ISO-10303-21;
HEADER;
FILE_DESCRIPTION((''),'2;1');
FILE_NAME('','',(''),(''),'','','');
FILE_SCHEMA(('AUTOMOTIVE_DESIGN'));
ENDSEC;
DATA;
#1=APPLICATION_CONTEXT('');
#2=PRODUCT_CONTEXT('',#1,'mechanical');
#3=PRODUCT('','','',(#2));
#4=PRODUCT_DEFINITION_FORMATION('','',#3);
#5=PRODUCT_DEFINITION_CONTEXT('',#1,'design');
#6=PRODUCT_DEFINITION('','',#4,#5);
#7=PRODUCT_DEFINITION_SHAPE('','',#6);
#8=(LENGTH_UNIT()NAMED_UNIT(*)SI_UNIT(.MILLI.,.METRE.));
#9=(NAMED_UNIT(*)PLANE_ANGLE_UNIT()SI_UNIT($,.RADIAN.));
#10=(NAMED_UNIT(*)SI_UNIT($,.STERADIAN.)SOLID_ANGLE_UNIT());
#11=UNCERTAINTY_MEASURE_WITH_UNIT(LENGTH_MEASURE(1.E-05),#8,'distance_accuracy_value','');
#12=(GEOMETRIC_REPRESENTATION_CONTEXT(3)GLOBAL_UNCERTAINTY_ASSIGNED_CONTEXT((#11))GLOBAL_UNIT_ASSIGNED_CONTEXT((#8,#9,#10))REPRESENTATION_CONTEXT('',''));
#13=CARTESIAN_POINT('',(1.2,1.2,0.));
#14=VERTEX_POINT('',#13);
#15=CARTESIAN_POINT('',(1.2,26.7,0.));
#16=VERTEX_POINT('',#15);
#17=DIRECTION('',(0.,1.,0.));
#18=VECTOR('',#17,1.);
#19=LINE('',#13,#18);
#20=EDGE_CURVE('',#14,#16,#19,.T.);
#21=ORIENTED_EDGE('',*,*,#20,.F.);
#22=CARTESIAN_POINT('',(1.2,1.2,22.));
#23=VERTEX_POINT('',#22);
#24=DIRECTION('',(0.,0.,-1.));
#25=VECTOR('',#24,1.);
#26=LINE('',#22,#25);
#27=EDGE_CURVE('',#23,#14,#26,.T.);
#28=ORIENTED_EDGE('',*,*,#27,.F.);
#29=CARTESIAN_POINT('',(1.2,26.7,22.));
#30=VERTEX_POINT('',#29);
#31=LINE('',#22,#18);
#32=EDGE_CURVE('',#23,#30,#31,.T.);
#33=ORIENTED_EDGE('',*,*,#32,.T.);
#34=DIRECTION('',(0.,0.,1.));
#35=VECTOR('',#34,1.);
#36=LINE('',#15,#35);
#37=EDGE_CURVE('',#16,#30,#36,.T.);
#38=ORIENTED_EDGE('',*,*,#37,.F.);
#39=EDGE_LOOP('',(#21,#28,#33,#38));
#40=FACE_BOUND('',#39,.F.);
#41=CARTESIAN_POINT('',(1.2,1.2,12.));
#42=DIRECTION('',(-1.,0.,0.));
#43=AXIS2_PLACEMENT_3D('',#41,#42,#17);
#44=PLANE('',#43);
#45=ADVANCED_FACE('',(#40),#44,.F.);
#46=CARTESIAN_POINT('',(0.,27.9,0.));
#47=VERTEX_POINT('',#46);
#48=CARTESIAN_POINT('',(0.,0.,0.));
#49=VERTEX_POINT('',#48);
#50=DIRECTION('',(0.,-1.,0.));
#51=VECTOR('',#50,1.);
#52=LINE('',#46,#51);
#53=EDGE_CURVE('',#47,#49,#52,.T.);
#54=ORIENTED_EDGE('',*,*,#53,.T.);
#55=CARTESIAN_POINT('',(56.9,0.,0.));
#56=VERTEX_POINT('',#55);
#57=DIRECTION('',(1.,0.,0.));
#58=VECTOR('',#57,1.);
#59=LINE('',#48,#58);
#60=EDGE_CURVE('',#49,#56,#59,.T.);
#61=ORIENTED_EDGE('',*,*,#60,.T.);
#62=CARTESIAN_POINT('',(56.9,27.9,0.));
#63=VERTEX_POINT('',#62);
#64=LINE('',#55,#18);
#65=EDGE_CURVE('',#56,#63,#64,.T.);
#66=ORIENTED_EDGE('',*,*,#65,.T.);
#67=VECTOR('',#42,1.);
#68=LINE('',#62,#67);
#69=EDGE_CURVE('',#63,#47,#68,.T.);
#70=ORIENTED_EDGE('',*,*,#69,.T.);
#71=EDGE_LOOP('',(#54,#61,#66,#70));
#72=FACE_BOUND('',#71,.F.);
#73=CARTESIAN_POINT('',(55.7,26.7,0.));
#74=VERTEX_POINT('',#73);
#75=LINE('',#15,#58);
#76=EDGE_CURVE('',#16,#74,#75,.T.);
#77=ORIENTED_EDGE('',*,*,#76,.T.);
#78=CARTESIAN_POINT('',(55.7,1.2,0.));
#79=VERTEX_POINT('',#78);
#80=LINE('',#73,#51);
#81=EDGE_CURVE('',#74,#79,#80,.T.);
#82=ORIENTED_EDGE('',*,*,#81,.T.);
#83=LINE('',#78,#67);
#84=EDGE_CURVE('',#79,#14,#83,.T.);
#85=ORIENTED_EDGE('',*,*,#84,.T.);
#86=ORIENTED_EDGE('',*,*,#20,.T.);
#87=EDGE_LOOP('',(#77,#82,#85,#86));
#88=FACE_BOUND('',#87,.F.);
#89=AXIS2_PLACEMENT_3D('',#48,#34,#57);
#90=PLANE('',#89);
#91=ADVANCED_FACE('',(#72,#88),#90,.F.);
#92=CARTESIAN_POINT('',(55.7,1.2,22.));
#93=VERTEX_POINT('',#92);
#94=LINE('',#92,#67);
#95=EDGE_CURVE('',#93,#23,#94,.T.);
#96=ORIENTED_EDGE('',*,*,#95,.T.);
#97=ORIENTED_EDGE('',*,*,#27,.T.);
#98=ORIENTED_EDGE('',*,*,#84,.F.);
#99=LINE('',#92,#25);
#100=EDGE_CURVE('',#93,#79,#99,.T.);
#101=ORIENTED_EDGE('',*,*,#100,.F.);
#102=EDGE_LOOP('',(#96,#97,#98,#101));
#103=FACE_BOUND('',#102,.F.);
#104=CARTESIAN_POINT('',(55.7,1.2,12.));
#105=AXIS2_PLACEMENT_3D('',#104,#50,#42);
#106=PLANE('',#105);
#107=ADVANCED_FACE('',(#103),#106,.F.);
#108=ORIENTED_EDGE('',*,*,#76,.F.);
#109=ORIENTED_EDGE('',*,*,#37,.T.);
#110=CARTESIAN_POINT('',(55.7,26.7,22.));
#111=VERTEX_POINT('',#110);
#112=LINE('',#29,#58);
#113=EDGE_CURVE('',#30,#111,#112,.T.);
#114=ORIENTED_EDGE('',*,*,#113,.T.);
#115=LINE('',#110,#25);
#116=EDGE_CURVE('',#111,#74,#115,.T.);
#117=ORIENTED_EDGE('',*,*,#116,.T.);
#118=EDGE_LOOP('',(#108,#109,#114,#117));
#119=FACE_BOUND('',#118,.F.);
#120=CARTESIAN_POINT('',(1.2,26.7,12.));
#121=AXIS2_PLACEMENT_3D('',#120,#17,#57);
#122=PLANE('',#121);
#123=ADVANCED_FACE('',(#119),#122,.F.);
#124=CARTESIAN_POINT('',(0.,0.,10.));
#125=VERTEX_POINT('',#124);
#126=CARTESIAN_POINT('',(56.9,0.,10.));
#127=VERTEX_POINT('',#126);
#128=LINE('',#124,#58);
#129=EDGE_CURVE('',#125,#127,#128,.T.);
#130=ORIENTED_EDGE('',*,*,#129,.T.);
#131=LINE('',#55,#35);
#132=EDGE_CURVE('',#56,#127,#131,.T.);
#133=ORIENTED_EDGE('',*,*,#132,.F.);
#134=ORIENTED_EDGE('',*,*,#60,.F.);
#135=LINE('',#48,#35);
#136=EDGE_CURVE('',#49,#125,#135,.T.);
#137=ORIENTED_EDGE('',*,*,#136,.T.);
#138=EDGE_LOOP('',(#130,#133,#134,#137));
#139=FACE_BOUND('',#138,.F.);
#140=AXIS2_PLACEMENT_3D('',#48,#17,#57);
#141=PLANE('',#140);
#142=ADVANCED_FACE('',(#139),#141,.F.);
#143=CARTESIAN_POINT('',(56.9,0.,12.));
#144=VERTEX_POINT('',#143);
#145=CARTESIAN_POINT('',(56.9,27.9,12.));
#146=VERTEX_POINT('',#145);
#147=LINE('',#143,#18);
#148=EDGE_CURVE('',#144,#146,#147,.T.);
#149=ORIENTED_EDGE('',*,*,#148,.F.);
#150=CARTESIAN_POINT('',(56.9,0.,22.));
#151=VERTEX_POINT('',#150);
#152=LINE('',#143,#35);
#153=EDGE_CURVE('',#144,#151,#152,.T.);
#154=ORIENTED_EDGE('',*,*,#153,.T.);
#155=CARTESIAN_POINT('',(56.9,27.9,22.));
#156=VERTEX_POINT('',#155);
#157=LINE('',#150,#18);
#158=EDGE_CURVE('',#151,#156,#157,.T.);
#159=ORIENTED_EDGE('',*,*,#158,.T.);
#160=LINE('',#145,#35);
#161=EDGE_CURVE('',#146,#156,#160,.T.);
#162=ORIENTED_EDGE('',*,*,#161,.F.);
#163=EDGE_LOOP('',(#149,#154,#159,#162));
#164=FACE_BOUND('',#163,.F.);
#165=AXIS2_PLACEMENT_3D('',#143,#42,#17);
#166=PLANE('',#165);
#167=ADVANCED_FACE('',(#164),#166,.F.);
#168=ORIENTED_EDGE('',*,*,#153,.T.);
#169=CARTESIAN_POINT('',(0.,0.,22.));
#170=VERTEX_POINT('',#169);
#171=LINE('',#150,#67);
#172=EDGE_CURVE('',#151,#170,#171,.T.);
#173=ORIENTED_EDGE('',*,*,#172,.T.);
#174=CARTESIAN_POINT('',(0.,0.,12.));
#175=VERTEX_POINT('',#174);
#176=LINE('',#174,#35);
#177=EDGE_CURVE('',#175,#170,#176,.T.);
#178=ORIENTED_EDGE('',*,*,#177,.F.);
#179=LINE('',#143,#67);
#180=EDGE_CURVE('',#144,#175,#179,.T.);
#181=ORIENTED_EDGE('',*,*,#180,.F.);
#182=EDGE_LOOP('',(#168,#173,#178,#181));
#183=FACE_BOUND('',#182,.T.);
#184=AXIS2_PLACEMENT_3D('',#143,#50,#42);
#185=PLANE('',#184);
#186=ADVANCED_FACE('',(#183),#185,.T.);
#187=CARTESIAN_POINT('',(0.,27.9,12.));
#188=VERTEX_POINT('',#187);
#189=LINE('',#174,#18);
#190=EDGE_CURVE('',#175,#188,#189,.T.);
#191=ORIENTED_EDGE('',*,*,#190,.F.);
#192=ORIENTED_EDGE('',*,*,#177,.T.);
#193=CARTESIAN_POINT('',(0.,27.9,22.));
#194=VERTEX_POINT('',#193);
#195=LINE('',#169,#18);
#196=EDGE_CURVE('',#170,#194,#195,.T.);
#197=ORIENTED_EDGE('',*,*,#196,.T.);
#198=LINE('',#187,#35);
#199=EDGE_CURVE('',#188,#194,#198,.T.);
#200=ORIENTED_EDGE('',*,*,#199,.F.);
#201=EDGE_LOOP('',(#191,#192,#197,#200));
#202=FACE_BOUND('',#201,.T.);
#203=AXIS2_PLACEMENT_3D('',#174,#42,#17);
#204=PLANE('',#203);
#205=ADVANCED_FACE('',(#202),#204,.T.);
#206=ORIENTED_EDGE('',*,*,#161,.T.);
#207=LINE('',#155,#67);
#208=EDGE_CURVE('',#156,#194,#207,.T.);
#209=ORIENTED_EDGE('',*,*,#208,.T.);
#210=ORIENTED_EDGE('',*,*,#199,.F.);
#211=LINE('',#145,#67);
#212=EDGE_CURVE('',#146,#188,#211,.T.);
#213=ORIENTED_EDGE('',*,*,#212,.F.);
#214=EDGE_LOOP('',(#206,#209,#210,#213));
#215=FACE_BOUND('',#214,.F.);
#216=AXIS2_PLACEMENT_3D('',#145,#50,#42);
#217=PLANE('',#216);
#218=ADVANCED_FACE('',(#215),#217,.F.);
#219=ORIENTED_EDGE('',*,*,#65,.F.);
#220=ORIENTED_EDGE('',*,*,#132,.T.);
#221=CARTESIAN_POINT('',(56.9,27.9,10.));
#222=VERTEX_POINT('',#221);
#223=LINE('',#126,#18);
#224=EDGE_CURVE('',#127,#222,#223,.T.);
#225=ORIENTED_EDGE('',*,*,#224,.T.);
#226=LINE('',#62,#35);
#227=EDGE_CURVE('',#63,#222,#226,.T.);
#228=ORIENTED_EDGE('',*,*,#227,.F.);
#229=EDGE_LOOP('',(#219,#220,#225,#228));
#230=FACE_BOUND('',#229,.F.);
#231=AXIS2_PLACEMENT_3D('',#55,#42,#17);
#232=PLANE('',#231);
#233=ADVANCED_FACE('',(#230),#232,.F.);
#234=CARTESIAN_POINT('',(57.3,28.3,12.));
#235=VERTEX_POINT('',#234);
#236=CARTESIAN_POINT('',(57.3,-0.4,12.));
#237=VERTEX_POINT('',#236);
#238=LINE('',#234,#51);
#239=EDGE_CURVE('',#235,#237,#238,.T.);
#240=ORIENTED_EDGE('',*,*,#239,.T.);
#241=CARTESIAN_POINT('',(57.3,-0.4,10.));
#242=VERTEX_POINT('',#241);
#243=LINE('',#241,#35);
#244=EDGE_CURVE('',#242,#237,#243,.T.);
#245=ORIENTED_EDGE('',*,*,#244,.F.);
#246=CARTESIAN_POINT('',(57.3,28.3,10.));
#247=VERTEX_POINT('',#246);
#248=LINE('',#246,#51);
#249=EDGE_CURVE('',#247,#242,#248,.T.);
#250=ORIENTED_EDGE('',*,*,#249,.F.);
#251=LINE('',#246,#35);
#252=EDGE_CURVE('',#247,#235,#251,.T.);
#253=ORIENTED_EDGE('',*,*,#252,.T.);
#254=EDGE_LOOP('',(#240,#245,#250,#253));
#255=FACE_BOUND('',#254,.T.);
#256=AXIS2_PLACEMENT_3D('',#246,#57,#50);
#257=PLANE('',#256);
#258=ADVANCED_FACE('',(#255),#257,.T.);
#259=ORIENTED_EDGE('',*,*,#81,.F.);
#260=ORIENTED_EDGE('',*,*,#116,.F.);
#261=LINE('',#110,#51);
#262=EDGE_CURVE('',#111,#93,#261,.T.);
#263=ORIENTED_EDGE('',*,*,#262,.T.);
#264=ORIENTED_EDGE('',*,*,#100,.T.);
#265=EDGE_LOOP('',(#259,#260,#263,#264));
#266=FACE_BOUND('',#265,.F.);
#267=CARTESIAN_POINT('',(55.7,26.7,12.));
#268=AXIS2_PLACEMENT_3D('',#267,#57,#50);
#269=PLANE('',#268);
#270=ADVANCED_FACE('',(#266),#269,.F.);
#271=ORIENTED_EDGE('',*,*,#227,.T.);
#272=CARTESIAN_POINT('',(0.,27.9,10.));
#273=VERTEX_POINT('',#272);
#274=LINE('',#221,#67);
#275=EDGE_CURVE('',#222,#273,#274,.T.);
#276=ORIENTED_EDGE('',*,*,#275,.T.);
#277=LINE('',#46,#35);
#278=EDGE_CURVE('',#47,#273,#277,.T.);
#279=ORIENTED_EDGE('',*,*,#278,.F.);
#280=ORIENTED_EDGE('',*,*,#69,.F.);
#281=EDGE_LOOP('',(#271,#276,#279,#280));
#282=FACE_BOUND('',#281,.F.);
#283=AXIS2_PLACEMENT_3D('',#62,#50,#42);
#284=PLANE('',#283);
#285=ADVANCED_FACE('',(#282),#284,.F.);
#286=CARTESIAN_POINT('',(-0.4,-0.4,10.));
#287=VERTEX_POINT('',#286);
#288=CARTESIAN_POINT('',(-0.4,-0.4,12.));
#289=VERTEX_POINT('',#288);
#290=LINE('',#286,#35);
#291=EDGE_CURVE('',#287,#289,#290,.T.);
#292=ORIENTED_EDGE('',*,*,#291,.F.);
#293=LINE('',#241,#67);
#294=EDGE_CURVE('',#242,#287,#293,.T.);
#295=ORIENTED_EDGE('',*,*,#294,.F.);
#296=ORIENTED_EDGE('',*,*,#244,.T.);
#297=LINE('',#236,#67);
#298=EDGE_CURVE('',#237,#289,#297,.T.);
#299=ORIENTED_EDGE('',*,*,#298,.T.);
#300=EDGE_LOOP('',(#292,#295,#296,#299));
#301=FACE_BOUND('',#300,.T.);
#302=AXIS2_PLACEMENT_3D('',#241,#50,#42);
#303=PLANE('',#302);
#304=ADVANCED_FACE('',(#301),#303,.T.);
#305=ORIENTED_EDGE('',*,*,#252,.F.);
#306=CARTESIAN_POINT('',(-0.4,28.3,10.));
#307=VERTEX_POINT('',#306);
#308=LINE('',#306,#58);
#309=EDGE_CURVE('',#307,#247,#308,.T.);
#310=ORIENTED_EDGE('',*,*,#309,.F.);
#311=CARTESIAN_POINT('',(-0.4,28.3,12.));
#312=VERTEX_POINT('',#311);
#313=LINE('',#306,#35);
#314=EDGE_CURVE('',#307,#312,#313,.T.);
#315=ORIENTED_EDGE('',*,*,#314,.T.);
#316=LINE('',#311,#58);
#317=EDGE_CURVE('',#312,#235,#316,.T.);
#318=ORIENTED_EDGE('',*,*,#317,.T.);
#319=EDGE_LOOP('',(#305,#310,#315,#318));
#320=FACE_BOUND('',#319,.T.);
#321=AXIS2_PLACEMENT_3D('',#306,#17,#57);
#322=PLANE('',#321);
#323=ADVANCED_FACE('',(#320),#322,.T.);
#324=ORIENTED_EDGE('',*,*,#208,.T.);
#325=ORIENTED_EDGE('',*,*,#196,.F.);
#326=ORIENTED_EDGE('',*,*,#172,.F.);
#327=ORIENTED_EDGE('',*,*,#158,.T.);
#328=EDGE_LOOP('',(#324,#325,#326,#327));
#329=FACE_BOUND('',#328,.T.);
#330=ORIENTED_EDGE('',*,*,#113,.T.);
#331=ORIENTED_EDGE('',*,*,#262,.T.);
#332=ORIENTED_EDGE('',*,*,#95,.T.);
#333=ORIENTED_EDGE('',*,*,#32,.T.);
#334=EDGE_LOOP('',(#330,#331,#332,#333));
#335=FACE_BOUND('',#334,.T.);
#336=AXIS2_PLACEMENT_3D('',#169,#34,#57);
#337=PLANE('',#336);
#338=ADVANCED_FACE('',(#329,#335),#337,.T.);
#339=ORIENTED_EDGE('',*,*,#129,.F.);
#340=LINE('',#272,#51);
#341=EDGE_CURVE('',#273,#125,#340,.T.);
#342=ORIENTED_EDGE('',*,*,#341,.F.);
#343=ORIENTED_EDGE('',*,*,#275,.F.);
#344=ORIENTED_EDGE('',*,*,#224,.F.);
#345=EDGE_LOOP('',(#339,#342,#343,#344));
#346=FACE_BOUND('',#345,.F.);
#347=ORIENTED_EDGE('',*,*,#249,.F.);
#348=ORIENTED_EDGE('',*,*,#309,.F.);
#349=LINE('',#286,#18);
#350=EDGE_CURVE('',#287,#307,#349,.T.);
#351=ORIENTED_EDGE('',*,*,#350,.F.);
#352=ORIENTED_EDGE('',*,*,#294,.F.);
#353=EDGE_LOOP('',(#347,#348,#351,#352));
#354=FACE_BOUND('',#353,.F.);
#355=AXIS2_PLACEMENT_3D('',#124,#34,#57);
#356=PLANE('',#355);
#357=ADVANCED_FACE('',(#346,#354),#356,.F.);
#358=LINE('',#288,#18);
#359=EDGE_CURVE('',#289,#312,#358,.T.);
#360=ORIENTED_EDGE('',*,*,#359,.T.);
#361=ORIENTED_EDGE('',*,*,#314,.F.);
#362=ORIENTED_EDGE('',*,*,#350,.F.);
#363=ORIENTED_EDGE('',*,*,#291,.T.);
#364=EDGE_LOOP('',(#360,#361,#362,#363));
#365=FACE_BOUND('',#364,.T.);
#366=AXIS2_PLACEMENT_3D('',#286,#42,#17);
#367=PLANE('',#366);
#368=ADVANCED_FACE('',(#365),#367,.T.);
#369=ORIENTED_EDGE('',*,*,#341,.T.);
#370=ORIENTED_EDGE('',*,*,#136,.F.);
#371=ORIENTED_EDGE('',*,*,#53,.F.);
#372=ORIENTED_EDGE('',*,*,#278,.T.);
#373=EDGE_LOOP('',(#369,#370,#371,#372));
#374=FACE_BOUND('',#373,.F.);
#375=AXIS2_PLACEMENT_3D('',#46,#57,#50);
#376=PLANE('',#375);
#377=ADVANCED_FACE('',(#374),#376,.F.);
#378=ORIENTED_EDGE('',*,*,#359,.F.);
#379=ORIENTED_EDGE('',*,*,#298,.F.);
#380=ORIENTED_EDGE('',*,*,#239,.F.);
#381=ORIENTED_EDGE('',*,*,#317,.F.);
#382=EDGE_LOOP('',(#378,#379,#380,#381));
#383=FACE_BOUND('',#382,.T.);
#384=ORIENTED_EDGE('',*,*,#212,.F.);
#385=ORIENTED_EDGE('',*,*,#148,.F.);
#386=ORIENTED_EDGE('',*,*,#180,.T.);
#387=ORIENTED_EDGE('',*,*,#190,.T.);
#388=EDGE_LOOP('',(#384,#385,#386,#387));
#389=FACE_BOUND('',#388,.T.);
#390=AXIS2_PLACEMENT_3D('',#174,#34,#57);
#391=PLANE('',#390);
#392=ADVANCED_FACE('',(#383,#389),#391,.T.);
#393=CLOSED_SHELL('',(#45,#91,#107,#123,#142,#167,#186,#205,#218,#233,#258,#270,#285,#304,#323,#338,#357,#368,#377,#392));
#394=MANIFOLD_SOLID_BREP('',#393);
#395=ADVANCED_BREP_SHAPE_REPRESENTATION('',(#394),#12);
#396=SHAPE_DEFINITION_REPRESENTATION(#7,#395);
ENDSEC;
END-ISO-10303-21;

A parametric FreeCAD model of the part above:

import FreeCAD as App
import Part
import Sketcher

V = App.Vector


def add_polygon(sketch, points):
    """Adds a closed chain of lines whose ends are joined by coincident constraints."""
    first, n = sketch.GeometryCount, len(points)
    for a, b in zip(points, points[1:] + points[:1]):
        sketch.addGeometry(Part.LineSegment(App.Vector(*a, 0), App.Vector(*b, 0)), False)
    for i in range(n):
        sketch.addConstraint(Sketcher.Constraint("Coincident", first + i, 2, first + (i + 1) % n, 1))

doc = App.newDocument("Part")
body = doc.addObject("PartDesign::Body", "Body")

sketch1 = doc.addObject("Sketcher::SketchObject", "Sketch")
body.addObject(sketch1)
sketch1.AttachmentSupport = (doc.XY_Plane, [""])
sketch1.MapMode = "FlatFace"
add_polygon(sketch1, [(0, 28), (0, 0), (57, 0), (57, 28)])
add_polygon(sketch1, [(1, 1), (1, 27), (56, 27), (56, 1)])
sketch1.addConstraint([
    Sketcher.Constraint("Vertical", 0),
    Sketcher.Constraint("Horizontal", 1),
    Sketcher.Constraint("Vertical", 2),
    Sketcher.Constraint("Horizontal", 3),
    Sketcher.Constraint("Vertical", 4),
    Sketcher.Constraint("Horizontal", 5),
    Sketcher.Constraint("Vertical", 6),
    Sketcher.Constraint("Horizontal", 7),
    Sketcher.Constraint("Coincident", 0, 2, -1, 1),
    Sketcher.Constraint("DistanceX", 1, 1, 1, 2, 56.9),
    Sketcher.Constraint("DistanceY", 0, 2, 0, 1, 27.9),
    Sketcher.Constraint("DistanceX", -1, 1, 4, 2, 1.2),
    Sketcher.Constraint("DistanceY", -1, 1, 6, 2, 1.2),
    Sketcher.Constraint("DistanceY", 4, 2, 3, 2, 1.2),
    Sketcher.Constraint("DistanceX", 5, 2, 2, 2, 1.2),
])
pad1 = doc.addObject("PartDesign::Pad", "Pad")
body.addObject(pad1)
pad1.Profile = sketch1
pad1.Length = 10

sketch2 = doc.addObject("Sketcher::SketchObject", "Sketch001")
body.addObject(sketch2)
sketch2.AttachmentSupport = (doc.XY_Plane, [""])
sketch2.MapMode = "FlatFace"
sketch2.AttachmentOffset = App.Placement(V(0, 0, 10), App.Rotation())
add_polygon(sketch2, [(57, 28), (0, 28), (0, 0), (57, 0)])
add_polygon(sketch2, [(1, 1), (1, 27), (56, 27), (56, 1)])
sketch2.addConstraint([
    Sketcher.Constraint("Horizontal", 0),
    Sketcher.Constraint("Vertical", 1),
    Sketcher.Constraint("Horizontal", 2),
    Sketcher.Constraint("Vertical", 3),
    Sketcher.Constraint("Vertical", 4),
    Sketcher.Constraint("Horizontal", 5),
    Sketcher.Constraint("Vertical", 6),
    Sketcher.Constraint("Horizontal", 7),
    Sketcher.Constraint("DistanceX", 0, 2, 4, 2, 1.6),
    Sketcher.Constraint("DistanceY", 4, 2, 0, 2, 1.6),
    Sketcher.Constraint("DistanceX", 5, 2, 3, 2, 1.6),
    Sketcher.Constraint("DistanceY", 2, 2, 6, 2, 1.6),
    Sketcher.Constraint("DistanceX", 0, 2, 0, 1, 57.7),
    Sketcher.Constraint("DistanceY", 1, 2, 1, 1, 28.7),
    Sketcher.Constraint("DistanceX", 0, 2, -1, 1, 0.4),
    Sketcher.Constraint("DistanceY", -1, 1, 0, 2, 28.3),
])
pad2 = doc.addObject("PartDesign::Pad", "Pad001")
body.addObject(pad2)
pad2.Profile = sketch2
pad2.Length = 2

sketch3 = doc.addObject("Sketcher::SketchObject", "Sketch002")
body.addObject(sketch3)
sketch3.AttachmentSupport = (doc.XY_Plane, [""])
sketch3.MapMode = "FlatFace"
sketch3.AttachmentOffset = App.Placement(V(0, 0, 12), App.Rotation())
add_polygon(sketch3, [(57, 0), (57, 28), (0, 28), (0, 0)])
add_polygon(sketch3, [(1, 1), (1, 27), (56, 27), (56, 1)])
sketch3.addConstraint([
    Sketcher.Constraint("Vertical", 0),
    Sketcher.Constraint("Horizontal", 1),
    Sketcher.Constraint("Vertical", 2),
    Sketcher.Constraint("Horizontal", 3),
    Sketcher.Constraint("Vertical", 4),
    Sketcher.Constraint("Horizontal", 5),
    Sketcher.Constraint("Vertical", 6),
    Sketcher.Constraint("Horizontal", 7),
    Sketcher.Constraint("Coincident", 2, 2, -1, 1),
    Sketcher.Constraint("DistanceX", 1, 2, 1, 1, 56.9),
    Sketcher.Constraint("DistanceX", 5, 1, 5, 2, 54.5),
    Sketcher.Constraint("DistanceY", 0, 1, 0, 2, 27.9),
    Sketcher.Constraint("DistanceY", 4, 1, 4, 2, 25.5),
    Sketcher.Constraint("DistanceX", -1, 1, 4, 2, 1.2),
    Sketcher.Constraint("DistanceY", -1, 1, 4, 2, 26.7),
])
pad3 = doc.addObject("PartDesign::Pad", "Pad002")
body.addObject(pad3)
pad3.Profile = sketch3
pad3.Length = 10

doc.recompute()
